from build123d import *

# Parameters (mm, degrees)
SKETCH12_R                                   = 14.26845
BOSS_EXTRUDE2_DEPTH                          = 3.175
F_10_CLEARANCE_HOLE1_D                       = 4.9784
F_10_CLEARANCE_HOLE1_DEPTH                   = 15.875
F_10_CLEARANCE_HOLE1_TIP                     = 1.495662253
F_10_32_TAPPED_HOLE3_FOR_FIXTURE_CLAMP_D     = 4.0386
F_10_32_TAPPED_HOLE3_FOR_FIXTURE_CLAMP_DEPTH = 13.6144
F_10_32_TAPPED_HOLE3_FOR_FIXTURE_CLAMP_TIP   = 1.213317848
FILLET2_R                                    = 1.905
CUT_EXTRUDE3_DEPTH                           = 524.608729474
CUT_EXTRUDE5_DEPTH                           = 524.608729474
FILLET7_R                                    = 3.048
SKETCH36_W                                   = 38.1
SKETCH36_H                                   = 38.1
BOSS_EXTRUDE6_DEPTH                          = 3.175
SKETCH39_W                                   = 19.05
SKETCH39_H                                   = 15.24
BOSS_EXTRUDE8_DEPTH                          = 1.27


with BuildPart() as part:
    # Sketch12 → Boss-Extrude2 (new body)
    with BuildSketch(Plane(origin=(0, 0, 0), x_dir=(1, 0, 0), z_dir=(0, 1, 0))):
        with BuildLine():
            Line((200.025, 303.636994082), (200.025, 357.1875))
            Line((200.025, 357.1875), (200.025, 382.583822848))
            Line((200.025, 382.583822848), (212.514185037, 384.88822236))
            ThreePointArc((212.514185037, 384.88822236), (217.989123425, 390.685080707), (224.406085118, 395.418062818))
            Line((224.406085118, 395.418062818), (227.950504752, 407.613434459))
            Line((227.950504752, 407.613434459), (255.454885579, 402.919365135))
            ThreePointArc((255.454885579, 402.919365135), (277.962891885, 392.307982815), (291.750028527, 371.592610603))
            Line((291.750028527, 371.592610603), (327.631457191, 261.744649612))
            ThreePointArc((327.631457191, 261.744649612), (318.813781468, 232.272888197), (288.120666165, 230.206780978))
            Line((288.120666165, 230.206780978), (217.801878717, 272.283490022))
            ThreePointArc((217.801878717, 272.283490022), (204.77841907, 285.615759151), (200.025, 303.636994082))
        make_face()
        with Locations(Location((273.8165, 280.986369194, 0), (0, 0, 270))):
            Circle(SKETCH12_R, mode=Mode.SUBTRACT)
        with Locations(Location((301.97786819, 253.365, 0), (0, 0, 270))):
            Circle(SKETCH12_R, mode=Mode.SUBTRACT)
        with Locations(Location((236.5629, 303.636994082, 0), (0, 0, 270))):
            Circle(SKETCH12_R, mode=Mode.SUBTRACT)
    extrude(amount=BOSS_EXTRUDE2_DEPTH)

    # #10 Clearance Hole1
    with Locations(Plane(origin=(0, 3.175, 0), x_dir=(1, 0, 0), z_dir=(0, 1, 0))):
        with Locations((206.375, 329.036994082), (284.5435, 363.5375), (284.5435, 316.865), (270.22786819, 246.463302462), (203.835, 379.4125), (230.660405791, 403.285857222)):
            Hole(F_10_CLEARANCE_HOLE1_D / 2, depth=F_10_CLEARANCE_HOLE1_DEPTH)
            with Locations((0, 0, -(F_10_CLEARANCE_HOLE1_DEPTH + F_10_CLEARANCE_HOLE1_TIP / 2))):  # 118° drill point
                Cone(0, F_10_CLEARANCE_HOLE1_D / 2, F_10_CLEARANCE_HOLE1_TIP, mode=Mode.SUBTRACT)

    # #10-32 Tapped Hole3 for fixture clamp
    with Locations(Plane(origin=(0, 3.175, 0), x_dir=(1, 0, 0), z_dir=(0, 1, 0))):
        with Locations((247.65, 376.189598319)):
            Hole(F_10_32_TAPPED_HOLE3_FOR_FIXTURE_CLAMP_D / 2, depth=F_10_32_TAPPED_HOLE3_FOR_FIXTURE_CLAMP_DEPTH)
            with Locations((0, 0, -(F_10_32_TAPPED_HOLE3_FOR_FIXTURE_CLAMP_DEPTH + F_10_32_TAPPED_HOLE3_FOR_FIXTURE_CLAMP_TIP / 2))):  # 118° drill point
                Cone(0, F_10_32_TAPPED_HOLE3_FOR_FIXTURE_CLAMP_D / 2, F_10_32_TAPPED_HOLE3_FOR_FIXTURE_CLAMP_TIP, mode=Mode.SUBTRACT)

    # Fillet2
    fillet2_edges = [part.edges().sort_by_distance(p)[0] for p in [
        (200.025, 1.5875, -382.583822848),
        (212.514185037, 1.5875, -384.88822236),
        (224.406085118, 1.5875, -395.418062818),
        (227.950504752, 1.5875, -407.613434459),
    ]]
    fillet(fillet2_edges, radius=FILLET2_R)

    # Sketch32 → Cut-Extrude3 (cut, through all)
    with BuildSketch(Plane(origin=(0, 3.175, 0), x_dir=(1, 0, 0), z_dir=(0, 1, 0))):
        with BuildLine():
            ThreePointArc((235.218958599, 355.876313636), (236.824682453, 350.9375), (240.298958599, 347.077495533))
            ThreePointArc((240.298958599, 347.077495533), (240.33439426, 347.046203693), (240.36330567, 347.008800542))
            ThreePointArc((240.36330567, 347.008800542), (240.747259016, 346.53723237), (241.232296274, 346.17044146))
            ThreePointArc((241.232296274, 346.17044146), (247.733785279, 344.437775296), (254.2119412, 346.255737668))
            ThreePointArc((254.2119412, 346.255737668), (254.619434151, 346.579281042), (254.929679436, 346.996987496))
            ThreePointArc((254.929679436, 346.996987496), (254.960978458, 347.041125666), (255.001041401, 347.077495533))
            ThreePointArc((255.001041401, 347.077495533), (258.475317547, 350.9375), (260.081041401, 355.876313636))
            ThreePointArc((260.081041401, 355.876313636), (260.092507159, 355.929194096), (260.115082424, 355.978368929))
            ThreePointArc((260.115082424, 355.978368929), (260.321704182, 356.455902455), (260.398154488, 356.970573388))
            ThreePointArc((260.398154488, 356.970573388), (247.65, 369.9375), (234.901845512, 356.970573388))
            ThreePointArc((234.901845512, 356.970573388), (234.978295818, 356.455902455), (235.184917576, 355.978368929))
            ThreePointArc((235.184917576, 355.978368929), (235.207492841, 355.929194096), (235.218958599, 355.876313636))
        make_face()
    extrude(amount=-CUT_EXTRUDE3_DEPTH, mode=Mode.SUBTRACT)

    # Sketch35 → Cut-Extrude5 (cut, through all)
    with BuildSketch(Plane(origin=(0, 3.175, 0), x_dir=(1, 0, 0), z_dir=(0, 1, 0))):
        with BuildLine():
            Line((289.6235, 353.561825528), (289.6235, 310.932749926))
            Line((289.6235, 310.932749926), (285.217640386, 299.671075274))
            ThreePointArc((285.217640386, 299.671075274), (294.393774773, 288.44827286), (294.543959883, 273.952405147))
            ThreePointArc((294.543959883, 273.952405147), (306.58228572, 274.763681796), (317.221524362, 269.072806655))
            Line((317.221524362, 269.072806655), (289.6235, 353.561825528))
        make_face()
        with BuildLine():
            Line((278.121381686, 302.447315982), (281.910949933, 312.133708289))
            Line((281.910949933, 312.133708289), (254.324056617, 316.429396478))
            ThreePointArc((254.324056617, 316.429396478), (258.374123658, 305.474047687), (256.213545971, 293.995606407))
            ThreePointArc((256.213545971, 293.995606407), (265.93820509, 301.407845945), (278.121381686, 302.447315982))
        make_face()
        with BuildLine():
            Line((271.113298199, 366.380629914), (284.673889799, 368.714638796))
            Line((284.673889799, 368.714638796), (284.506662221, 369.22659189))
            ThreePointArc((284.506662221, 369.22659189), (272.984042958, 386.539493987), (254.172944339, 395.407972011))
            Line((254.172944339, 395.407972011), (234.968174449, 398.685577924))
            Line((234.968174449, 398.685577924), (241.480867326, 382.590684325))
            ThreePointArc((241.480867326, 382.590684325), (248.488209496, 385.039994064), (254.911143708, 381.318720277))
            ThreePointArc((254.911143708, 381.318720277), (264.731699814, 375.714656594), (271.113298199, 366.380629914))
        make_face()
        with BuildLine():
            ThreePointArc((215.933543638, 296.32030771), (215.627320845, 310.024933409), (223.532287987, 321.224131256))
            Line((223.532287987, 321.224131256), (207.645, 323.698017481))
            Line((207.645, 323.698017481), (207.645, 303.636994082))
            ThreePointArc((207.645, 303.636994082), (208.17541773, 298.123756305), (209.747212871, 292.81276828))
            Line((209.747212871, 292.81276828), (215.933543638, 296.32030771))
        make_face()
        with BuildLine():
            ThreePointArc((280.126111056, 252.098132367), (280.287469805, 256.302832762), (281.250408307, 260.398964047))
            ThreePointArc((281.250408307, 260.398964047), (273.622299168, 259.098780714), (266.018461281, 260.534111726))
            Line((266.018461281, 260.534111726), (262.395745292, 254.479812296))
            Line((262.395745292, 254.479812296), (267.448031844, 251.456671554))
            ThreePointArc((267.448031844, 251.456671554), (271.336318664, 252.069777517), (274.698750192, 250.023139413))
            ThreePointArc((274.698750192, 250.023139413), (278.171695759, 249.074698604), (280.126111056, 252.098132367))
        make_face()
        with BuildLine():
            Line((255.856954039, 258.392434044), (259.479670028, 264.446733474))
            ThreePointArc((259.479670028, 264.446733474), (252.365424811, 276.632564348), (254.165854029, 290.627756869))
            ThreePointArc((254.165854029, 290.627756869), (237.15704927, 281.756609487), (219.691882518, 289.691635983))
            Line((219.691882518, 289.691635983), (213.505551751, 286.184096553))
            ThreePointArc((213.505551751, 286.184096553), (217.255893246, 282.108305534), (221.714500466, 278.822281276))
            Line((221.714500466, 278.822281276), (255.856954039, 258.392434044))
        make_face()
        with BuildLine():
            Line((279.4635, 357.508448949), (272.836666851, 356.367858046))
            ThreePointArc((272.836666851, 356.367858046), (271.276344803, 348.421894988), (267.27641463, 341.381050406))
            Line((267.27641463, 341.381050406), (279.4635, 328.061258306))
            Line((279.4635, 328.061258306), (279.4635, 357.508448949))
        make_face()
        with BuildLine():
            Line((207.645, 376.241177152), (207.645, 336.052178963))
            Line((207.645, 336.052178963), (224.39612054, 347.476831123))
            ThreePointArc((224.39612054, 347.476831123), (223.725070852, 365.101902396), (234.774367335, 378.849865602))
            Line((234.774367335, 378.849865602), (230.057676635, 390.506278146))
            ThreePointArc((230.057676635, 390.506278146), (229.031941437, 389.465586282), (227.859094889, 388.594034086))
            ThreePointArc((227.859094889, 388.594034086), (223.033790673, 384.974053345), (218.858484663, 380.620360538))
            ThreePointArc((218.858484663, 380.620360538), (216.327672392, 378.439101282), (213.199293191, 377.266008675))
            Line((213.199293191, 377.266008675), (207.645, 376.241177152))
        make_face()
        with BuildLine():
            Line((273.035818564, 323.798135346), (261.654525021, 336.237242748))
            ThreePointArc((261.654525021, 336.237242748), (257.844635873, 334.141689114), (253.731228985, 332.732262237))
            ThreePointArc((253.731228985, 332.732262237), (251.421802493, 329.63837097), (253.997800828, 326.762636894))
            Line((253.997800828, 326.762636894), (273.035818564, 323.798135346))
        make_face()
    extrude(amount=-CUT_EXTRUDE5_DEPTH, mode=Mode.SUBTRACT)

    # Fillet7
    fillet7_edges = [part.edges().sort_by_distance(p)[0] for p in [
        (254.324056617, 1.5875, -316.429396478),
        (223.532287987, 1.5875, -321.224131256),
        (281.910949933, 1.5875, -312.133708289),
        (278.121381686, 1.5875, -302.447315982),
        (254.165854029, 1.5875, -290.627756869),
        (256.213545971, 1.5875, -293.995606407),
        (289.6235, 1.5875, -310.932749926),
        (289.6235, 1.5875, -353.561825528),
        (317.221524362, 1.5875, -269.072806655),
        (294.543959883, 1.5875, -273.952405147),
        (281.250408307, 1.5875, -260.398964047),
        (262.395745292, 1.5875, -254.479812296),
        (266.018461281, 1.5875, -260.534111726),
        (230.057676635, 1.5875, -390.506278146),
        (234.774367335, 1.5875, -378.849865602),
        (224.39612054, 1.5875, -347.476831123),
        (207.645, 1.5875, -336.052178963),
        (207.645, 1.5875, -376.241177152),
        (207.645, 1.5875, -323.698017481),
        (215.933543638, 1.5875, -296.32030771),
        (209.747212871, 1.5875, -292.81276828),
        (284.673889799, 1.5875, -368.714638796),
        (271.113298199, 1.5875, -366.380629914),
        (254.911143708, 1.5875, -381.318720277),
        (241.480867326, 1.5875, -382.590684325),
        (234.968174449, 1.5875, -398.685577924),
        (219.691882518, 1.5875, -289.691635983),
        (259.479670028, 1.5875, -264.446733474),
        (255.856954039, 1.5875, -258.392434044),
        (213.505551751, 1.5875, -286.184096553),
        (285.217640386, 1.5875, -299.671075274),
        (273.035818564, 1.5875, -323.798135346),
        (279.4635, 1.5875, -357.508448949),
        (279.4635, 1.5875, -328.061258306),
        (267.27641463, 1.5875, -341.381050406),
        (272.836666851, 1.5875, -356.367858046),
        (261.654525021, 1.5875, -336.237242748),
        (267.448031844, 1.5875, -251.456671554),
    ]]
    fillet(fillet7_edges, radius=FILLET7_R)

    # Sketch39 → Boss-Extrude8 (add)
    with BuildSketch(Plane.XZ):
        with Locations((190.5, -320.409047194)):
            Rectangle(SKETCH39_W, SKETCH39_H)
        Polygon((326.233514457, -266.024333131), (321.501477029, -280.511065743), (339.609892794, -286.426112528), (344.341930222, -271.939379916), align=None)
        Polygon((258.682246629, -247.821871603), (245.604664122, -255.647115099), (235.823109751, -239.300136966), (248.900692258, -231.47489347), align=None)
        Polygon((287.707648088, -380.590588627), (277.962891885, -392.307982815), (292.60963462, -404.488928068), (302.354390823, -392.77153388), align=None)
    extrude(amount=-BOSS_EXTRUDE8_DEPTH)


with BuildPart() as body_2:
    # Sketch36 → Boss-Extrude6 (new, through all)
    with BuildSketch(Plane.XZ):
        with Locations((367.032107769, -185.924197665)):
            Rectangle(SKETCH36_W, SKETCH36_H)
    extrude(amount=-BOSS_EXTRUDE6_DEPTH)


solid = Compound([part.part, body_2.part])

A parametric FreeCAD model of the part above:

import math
import FreeCAD as App
import Part
import Sketcher

V = App.Vector
Q = App.Units.Quantity


def edges_at(feature, points):
    """Names of the edges that pass closest to the given points."""
    edges = feature.Shape.Edges
    near = lambda p: min(range(len(edges)), key=lambda i: edges[i].distToShape(Part.Vertex(*p))[0])
    return sorted({f"Edge{near(p) + 1}" for p in points})


def add_polygon(sketch, points):
    """Adds a closed chain of lines whose ends are joined by coincident constraints."""
    first, n = sketch.GeometryCount, len(points)
    for a, b in zip(points, points[1:] + points[:1]):
        sketch.addGeometry(Part.LineSegment(App.Vector(*a, 0), App.Vector(*b, 0)), False)
    for i in range(n):
        sketch.addConstraint(Sketcher.Constraint("Coincident", first + i, 2, first + (i + 1) % n, 1))

doc = App.newDocument("Part")
body = doc.addObject("PartDesign::Body", "Body")

# Sketch on XZ plane
sketch1 = doc.addObject("Sketcher::SketchObject", "Sketch")
body.addObject(sketch1)
sketch1.AttachmentSupport = (doc.XZ_Plane, [""])
sketch1.MapMode = "FlatFace"
sketch1.addGeometry([
    Part.LineSegment(V(200.025, -382.583823, 0), V(200.025, -303.636994, 0)),  # 0
    Part.ArcOfCircle(Part.Circle(V(236.5629, -303.636994, 0), V(0, 0, 1), 36.5379), math.radians(120.89507), math.radians(180)),  # 1
    Part.LineSegment(V(217.801879, -272.28349, 0), V(288.120666, -230.206781, 0)),  # 2
    Part.ArcOfCircle(Part.Circle(V(301.977868, -253.365, 0), V(0, 0, 1), 26.9875), math.radians(-18.089434), math.radians(120.89507)),  # 3
    Part.LineSegment(V(327.631457, -261.74465, 0), V(291.750029, -371.592611, 0)),  # 4
    Part.ArcOfCircle(Part.Circle(V(247.65, -357.1875, 0), V(0, 0, 1), 46.3931), math.radians(-80.314858), math.radians(-18.089434)),  # 5
    Part.LineSegment(V(255.454886, -402.919365, 0), V(227.950505, -407.613434, 0)),  # 6
    Part.LineSegment(V(227.950505, -407.613434, 0), V(224.406085, -395.418063, 0)),  # 7
    Part.ArcOfCircle(Part.Circle(V(247.65, -357.1875, 0), V(0, 0, 1), 44.7421), math.radians(-141.74811), math.radians(-121.299309)),  # 8
    Part.LineSegment(V(212.514185, -384.888222, 0), V(200.025, -382.583823, 0)),  # 9
    Part.Circle(V(301.977868, -253.365, 0), V(0, 0, 1), 14.26845),  # 10
    Part.Circle(V(273.8165, -280.986369, 0), V(0, 0, 1), 14.26845),  # 11
    Part.Circle(V(236.5629, -303.636994, 0), V(0, 0, 1), 14.26845),  # 12
], False)
sketch1.addConstraint([
    Sketcher.Constraint("Tangent", 0, 2, 1, 2),
    Sketcher.Constraint("Tangent", 1, 1, 2, 1),
    Sketcher.Constraint("Tangent", 2, 2, 3, 2),
    Sketcher.Constraint("Tangent", 3, 1, 4, 1),
    Sketcher.Constraint("Tangent", 4, 2, 5, 2),
    Sketcher.Constraint("Tangent", 5, 1, 6, 1),
    Sketcher.Constraint("Coincident", 6, 2, 7, 1),
    Sketcher.Constraint("Coincident", 7, 2, 8, 2),
    Sketcher.Constraint("Coincident", 8, 1, 9, 1),
    Sketcher.Constraint("Coincident", 9, 2, 0, 1),
    Sketcher.Constraint("Vertical", 0),
    Sketcher.Constraint("Coincident", 8, 3, 5, 3),
    Sketcher.Constraint("Coincident", 10, 3, 3, 3),
    Sketcher.Constraint("Coincident", 12, 3, 1, 3),
    Sketcher.Constraint("Equal", 10, 11),
    Sketcher.Constraint("Equal", 11, 12),
    Sketcher.Constraint("Equal", 7, 9),
    Sketcher.Constraint("Radius", 3, Q("1.0625 in")),
    Sketcher.Constraint("Distance", 7, Q("0.5 in")),
    Sketcher.Constraint("Diameter", 10, Q("1.1235 in")),
    Sketcher.Constraint("Radius", 1, Q("1.4385 in")),
    Sketcher.Constraint("Radius", 5, Q("1.8265 in")),
    Sketcher.Constraint("Radius", 8, Q("1.7615 in")),
    Sketcher.Constraint("DistanceX", -1, 1, 5, 3, Q("9.75 in")),
    Sketcher.Constraint("DistanceY", 3, 3, -1, 1, Q("9.975 in")),
    Sketcher.Constraint("DistanceY", 5, 3, -1, 1, Q("14.0625 in")),
    Sketcher.Constraint("DistanceX", -1, 1, 0, 2, Q("7.875 in")),
    Sketcher.Constraint("DistanceX", -1, 1, 8, 1, Q("8.3667002 in")),
    Sketcher.Constraint("DistanceX", 1, 1, 11, 3, Q("2.2053001 in")),
    Sketcher.Constraint("DistanceY", 0, 1, 0, 2, 78.946829),
    Sketcher.Constraint("DistanceX", -1, 1, 11, 3, 273.8165),
    Sketcher.Constraint("DistanceX", 7, 2, 5, 1, 31.0488),
    Sketcher.Constraint("DistanceX", 8, 1, 7, 2, 11.8919),
    Sketcher.Constraint("DistanceY", 11, 3, -1, 1, 280.986369),
])
pad1 = doc.addObject("PartDesign::Pad", "Pad")
body.addObject(pad1)
pad1.Profile = sketch1
pad1.Length = Q("0.125 in")
pad1.Reversed = True

# Sketch on XZ plane
sketch2 = doc.addObject("Sketcher::SketchObject", "Sketch001")
body.addObject(sketch2)
sketch2.AttachmentSupport = (doc.XZ_Plane, [""])
sketch2.MapMode = "FlatFace"
sketch2.AttachmentOffset = App.Placement(V(0, 0, -0.125 * 25.4), App.Rotation())
sketch2.addGeometry([
    Part.Circle(V(206.375, -329.036994, 0), V(0, 0, 1), 2.4892),  # 0
    Part.Circle(V(284.5435, -363.5375, 0), V(0, 0, 1), 2.4892),  # 1
    Part.Circle(V(284.5435, -316.865, 0), V(0, 0, 1), 2.4892),  # 2
    Part.Circle(V(270.227868, -246.463302, 0), V(0, 0, 1), 2.4892),  # 3
    Part.Circle(V(203.835, -379.4125, 0), V(0, 0, 1), 2.4892),  # 4
    Part.Circle(V(230.660406, -403.285857, 0), V(0, 0, 1), 2.4892),  # 5
], False)
sketch2.addConstraint([
    Sketcher.Constraint("Equal", 0, 1),
    Sketcher.Constraint("Equal", 1, 2),
    Sketcher.Constraint("Equal", 2, 3),
    Sketcher.Constraint("Equal", 3, 4),
    Sketcher.Constraint("Equal", 4, 5),
    Sketcher.Constraint("Vertical", 1, 3, 2, 3),
    Sketcher.Constraint("Diameter", 0, Q("0.196 in")),
    Sketcher.Constraint("DistanceX", 4, 3, 0, 3, Q("0.1 in")),
    Sketcher.Constraint("DistanceX", -1, 1, 0, 3, Q("8.125 in")),
    Sketcher.Constraint("DistanceY", 1, 3, -1, 1, Q("14.3125 in")),
    Sketcher.Constraint("DistanceY", 2, 3, -1, 1, Q("12.475 in")),
    Sketcher.Constraint("DistanceY", 4, 3, -1, 1, Q("14.9375 in")),
    Sketcher.Constraint("DistanceX", -1, 1, 1, 3, Q("11.2025 in")),
    Sketcher.Constraint("DistanceX", -1, 1, 3, 3, 270.227868),
    Sketcher.Constraint("DistanceY", 0, 3, 3, 3, 82.573692),
    Sketcher.Constraint("DistanceY", 0, 3, -1, 1, 329.036994),
    Sketcher.Constraint("DistanceX", -1, 1, 5, 3, 230.660406),
    Sketcher.Constraint("DistanceY", 5, 3, -1, 1, 403.285857),
])
doc.recompute()
hole = doc.addObject("PartDesign::Hole", "Hole")
body.addObject(hole)
hole.Profile = sketch2
hole.ThreadType = "None"
hole.Diameter = Q("0.196 in")
hole.DepthType = "Dimension"
hole.Depth = Q("0.625 in")
hole.DrillPoint = "Angled"
hole.DrillPointAngle = 118
hole.Reversed = True

# Sketch on XZ plane
sketch3 = doc.addObject("Sketcher::SketchObject", "Sketch002")
body.addObject(sketch3)
sketch3.AttachmentSupport = (doc.XZ_Plane, [""])
sketch3.MapMode = "FlatFace"
sketch3.AttachmentOffset = App.Placement(V(0, 0, -0.125 * 25.4), App.Rotation())
sketch3.addGeometry(Part.Circle(V(247.65, -376.189598, 0), V(0, 0, 1), 2.0193), False)
sketch3.addConstraint([
    Sketcher.Constraint("Diameter", 0, Q("0.159 in")),
    Sketcher.Constraint("DistanceX", -1, 1, 0, 3, Q("9.75 in")),
    Sketcher.Constraint("DistanceY", 0, 3, -1, 1, 376.189598),
])
doc.recompute()
hole2 = doc.addObject("PartDesign::Hole", "Hole001")
body.addObject(hole2)
hole2.Profile = sketch3
hole2.ThreadType = "None"
hole2.Diameter = Q("0.159 in")
hole2.DepthType = "Dimension"
hole2.Depth = Q("0.536 in")
hole2.DrillPoint = "Angled"
hole2.DrillPointAngle = 118
hole2.Reversed = True
doc.recompute()

fillet = doc.addObject("PartDesign::Fillet", "Fillet")
body.addObject(fillet)
fillet.Base = (hole2, edges_at(hole2, [
    (200.025, 1.587, -382.584),
    (212.514, 1.587, -384.888),
    (224.406, 1.587, -395.418),
    (227.951, 1.587, -407.613),
]))
fillet.Radius = Q("0.075 in")

# Sketch on XZ plane
sketch4 = doc.addObject("Sketcher::SketchObject", "Sketch003")
body.addObject(sketch4)
sketch4.AttachmentSupport = (doc.XZ_Plane, [""])
sketch4.MapMode = "FlatFace"
sketch4.AttachmentOffset = App.Placement(V(0, 0, -0.125 * 25.4), App.Rotation())
sketch4.addGeometry([
    Part.ArcOfCircle(Part.Circle(V(247.65, -357.1875, 0), V(0, 0, 1), 12.5), math.radians(126.021112), math.radians(173.978888)),  # 0
    Part.ArcOfCircle(Part.Circle(V(240.151938, -346.875295, 0), V(0, 0, 1), 0.25), math.radians(-53.978889), math.radians(-32.277501)),  # 1
    Part.ArcOfCircle(Part.Circle(V(242.510804, -348.365212, 0), V(0, 0, 1), 2.54), math.radians(120.221837), math.radians(147.722499)),  # 2
    Part.ArcOfCircle(Part.Circle(V(247.65, -357.1875, 0), V(0, 0, 1), 12.75), math.radians(59.025131), math.radians(120.221837)),  # 3
    Part.ArcOfCircle(Part.Circle(V(253.182617, -347.970524, 0), V(0, 0, 1), 2), math.radians(29.128386), math.radians(59.025131)),  # 4
    Part.ArcOfCircle(Part.Circle(V(255.148062, -346.875295, 0), V(0, 0, 1), 0.25), math.radians(-150.871615), math.radians(-126.021112)),  # 5
    Part.ArcOfCircle(Part.Circle(V(247.65, -357.1875, 0), V(0, 0, 1), 12.5), math.radians(6.021112), math.radians(53.978888)),  # 6
    Part.ArcOfCircle(Part.Circle(V(260.329662, -355.85009, 0), V(0, 0, 1), 0.25), math.radians(-173.978887), math.radians(-149.128386)),  # 7
    Part.ArcOfCircle(Part.Circle(V(258.398444, -357.004601, 0), V(0, 0, 1), 2), math.radians(0.974869), math.radians(30.871614)),  # 8
    Part.ArcOfCircle(Part.Circle(V(247.65, -357.1875, 0), V(0, 0, 1), 12.75), math.radians(179.025131), math.radians(360.974869)),  # 9
    Part.ArcOfCircle(Part.Circle(V(236.901556, -357.004601, 0), V(0, 0, 1), 2), math.radians(149.128386), math.radians(179.025131)),  # 10
    Part.ArcOfCircle(Part.Circle(V(234.970338, -355.85009, 0), V(0, 0, 1), 0.25), math.radians(-30.871614), math.radians(-6.021113)),  # 11
], False)
sketch4.addConstraint([
    Sketcher.Constraint("Tangent", 0, 1, 1, 1),
    Sketcher.Constraint("Tangent", 1, 2, 2, 2),
    Sketcher.Constraint("Tangent", 2, 1, 3, 2),
    Sketcher.Constraint("Tangent", 3, 1, 4, 2),
    Sketcher.Constraint("Tangent", 4, 1, 5, 1),
    Sketcher.Constraint("Tangent", 5, 2, 6, 2),
    Sketcher.Constraint("Tangent", 6, 1, 7, 1),
    Sketcher.Constraint("Tangent", 7, 2, 8, 2),
    Sketcher.Constraint("Tangent", 8, 1, 9, 2),
    Sketcher.Constraint("Tangent", 9, 1, 10, 2),
    Sketcher.Constraint("Tangent", 10, 1, 11, 1),
    Sketcher.Constraint("Tangent", 11, 2, 0, 2),
    Sketcher.Constraint("Coincident", 3, 3, 0, 3),
    Sketcher.Constraint("Coincident", 6, 3, 0, 3),
    Sketcher.Constraint("Coincident", 9, 3, 0, 3),
    Sketcher.Constraint("Equal", 1, 5),
    Sketcher.Constraint("Equal", 0, 6),
    Sketcher.Constraint("Equal", 5, 7),
    Sketcher.Constraint("Equal", 4, 8),
    Sketcher.Constraint("Equal", 3, 9),
    Sketcher.Constraint("Equal", 8, 10),
    Sketcher.Constraint("Equal", 7, 11),
    Sketcher.Constraint("Horizontal", 1, 3, 5, 3),
    Sketcher.Constraint("Horizontal", 8, 3, 10, 3),
    Sketcher.Constraint("Radius", 2, Q("0.1 in")),
    Sketcher.Constraint("DistanceX", 5, 2, 6, 1, Q("0.2 in")),
    Sketcher.Constraint("DistanceX", -1, 1, 0, 3, Q("9.75 in")),
    Sketcher.Constraint("Radius", 0, 12.5),
    Sketcher.Constraint("Radius", 1, 0.25),
    Sketcher.Constraint("Radius", 3, 12.75),
    Sketcher.Constraint("Radius", 4, 2.0),
    Sketcher.Constraint("DistanceY", 0, 3, -1, 1, Q("14.0625 in")),
    Sketcher.Constraint("DistanceY", 8, 3, -1, 1, 357.004601),
])
pocket1 = doc.addObject("PartDesign::Pocket", "Pocket")
body.addObject(pocket1)
pocket1.Profile = sketch4
pocket1.Type = "ThroughAll"
pocket1.Reversed = True

# Sketch on XZ plane
sketch5 = doc.addObject("Sketcher::SketchObject", "Sketch004")
body.addObject(sketch5)
sketch5.AttachmentSupport = (doc.XZ_Plane, [""])
sketch5.MapMode = "FlatFace"
sketch5.AttachmentOffset = App.Placement(V(0, 0, -0.125 * 25.4), App.Rotation())
sketch5.addGeometry([
    Part.LineSegment(V(289.6235, -353.561826, 0), V(289.6235, -310.93275, 0)),  # 0
    Part.LineSegment(V(289.6235, -310.93275, 0), V(285.21764, -299.671075, 0)),  # 1
    Part.ArcOfCircle(Part.Circle(V(273.8165, -280.986369, 0), V(0, 0, 1), 21.88845), math.radians(-58.609055), math.radians(18.744893)),  # 2
    Part.ArcOfCircle(Part.Circle(V(301.977868, -253.365, 0), V(0, 0, 1), 21.88845), math.radians(-109.85415), math.radians(-45.859147)),  # 3
    Part.LineSegment(V(317.221524, -269.072807, 0), V(289.6235, -353.561826, 0)),  # 4
    Part.LineSegment(V(278.121382, -302.447316, 0), V(281.91095, -312.133708, 0)),  # 5
    Part.LineSegment(V(281.91095, -312.133708, 0), V(254.324057, -316.429396, 0)),  # 6
    Part.ArcOfCircle(Part.Circle(V(236.5629, -303.636994, 0), V(0, 0, 1), 21.88845), math.radians(-35.76317), math.radians(26.134404)),  # 7
    Part.ArcOfCircle(Part.Circle(V(273.8165, -280.986369, 0), V(0, 0, 1), 21.88845), math.radians(-143.534222), math.radians(-78.657489)),  # 8
    Part.LineSegment(V(271.113298, -366.38063, 0), V(284.67389, -368.714639, 0)),  # 9
    Part.LineSegment(V(284.67389, -368.714639, 0), V(284.506662, -369.226592, 0)),  # 10
    Part.ArcOfCircle(Part.Circle(V(247.65, -357.1875, 0), V(0, 0, 1), 38.7731), math.radians(-80.314858), math.radians(-18.089434)),  # 11
    Part.LineSegment(V(254.172944, -395.407972, 0), V(234.968174, -398.685578, 0)),  # 12
    Part.LineSegment(V(234.968174, -398.685578, 0), V(241.480867, -382.590684, 0)),  # 13
    Part.ArcOfCircle(Part.Circle(V(247.65, -376.189598, 0), V(0, 0, 1), 8.89), math.radians(-133.942863), math.radians(-35.236594)),  # 14
    Part.ArcOfCircle(Part.Circle(V(247.65, -357.1875, 0), V(0, 0, 1), 25.2), math.radians(-73.253329), math.radians(-21.39569)),  # 15
    Part.ArcOfCircle(Part.Circle(V(236.5629, -303.636994, 0), V(0, 0, 1), 21.88845), math.radians(160.471752), math.radians(233.464618)),  # 16
    Part.LineSegment(V(223.532288, -321.224131, 0), V(207.645, -323.698017, 0)),  # 17
    Part.LineSegment(V(207.645, -323.698017, 0), V(207.645, -303.636994, 0)),  # 18
    Part.ArcOfCircle(Part.Circle(V(236.5629, -303.636994, 0), V(0, 0, 1), 28.9179), math.radians(158.018398), math.radians(180)),  # 19
    Part.LineSegment(V(209.747213, -292.812768, 0), V(215.933544, -296.320308, 0)),  # 20
    Part.ArcOfCircle(Part.Circle(V(301.977868, -253.365, 0), V(0, 0, 1), 21.88845), math.radians(176.68196), math.radians(198.744893)),  # 21
    Part.ArcOfCircle(Part.Circle(V(273.8165, -280.986369, 0), V(0, 0, 1), 21.88845), math.radians(70.14585), math.radians(110.870853)),  # 22
    Part.LineSegment(V(266.018461, -260.534112, 0), V(262.395745, -254.479812, 0)),  # 23
    Part.LineSegment(V(262.395745, -254.479812, 0), V(267.448032, -251.456672, 0)),  # 24
    Part.ArcOfCircle(Part.Circle(V(270.227868, -246.463302, 0), V(0, 0, 1), 5.715), math.radians(-119.10493), math.radians(-38.52775)),  # 25
    Part.ArcOfCircle(Part.Circle(V(277.083221, -251.921719, 0), V(0, 0, 1), 3.048), math.radians(-3.31804), math.radians(141.47225)),  # 26
    Part.LineSegment(V(255.856954, -258.392434, 0), V(259.47967, -264.446733, 0)),  # 27
    Part.ArcOfCircle(Part.Circle(V(273.8165, -280.986369, 0), V(0, 0, 1), 21.88845), math.radians(130.919287), math.radians(206.134404)),  # 28
    Part.ArcOfCircle(Part.Circle(V(236.5629, -303.636994, 0), V(0, 0, 1), 21.88845), math.radians(36.465778), math.radians(140.423318)),  # 29
    Part.LineSegment(V(219.691883, -289.691636, 0), V(213.505552, -286.184097, 0)),  # 30
    Part.ArcOfCircle(Part.Circle(V(236.5629, -303.636994, 0), V(0, 0, 1), 28.9179), math.radians(120.89507), math.radians(142.876672)),  # 31
    Part.LineSegment(V(221.7145, -278.822281, 0), V(255.856954, -258.392434, 0)),  # 32
    Part.LineSegment(V(279.4635, -357.508449, 0), V(272.836667, -356.367858, 0)),  # 33
    Part.ArcOfCircle(Part.Circle(V(247.65, -357.1875, 0), V(0, 0, 1), 25.2), math.radians(1.863901), math.radians(38.846792)),  # 34
    Part.LineSegment(V(267.276415, -341.38105, 0), V(279.4635, -328.061258, 0)),  # 35
    Part.LineSegment(V(279.4635, -328.061258, 0), V(279.4635, -357.508449, 0)),  # 36
    Part.LineSegment(V(207.645, -376.241177, 0), V(207.645, -336.052179, 0)),  # 37
    Part.LineSegment(V(207.645, -336.052179, 0), V(224.396121, -347.476831, 0)),  # 38
    Part.ArcOfCircle(Part.Circle(V(247.65, -357.1875, 0), V(0, 0, 1), 25.2), math.radians(157.334902), math.radians(239.273683)),  # 39
    Part.LineSegment(V(234.774367, -378.849866, 0), V(230.057677, -390.506278, 0)),  # 40
    Part.ArcOfCircle(Part.Circle(V(222.781032, -396.652502, 0), V(0, 0, 1), 9.525), math.radians(40.186133), math.radians(57.782819)),  # 41
    Part.ArcOfCircle(Part.Circle(V(247.65, -357.1875, 0), V(0, 0, 1), 37.1221), math.radians(-140.85852), math.radians(-122.217181)),  # 42
    Part.ArcOfCircle(Part.Circle(V(211.470994, -386.632897, 0), V(0, 0, 1), 9.525), math.radians(39.14148), math.radians(79.545841)),  # 43
    Part.LineSegment(V(213.199293, -377.266009, 0), V(207.645, -376.241177, 0)),  # 44
    Part.LineSegment(V(273.035819, -323.798135, 0), V(261.654525, -336.237243, 0)),  # 45
    Part.ArcOfCircle(Part.Circle(V(247.65, -357.1875, 0), V(0, 0, 1), 25.2), math.radians(56.238637), math.radians(76.035621)),  # 46
    Part.ArcOfCircle(Part.Circle(V(254.466768, -329.774343, 0), V(0, 0, 1), 3.048), math.radians(98.850724), math.radians(256.035621)),  # 47
    Part.LineSegment(V(253.997801, -326.762637, 0), V(273.035819, -323.798135, 0)),  # 48
], False)
sketch5.addConstraint([
    Sketcher.Constraint("Coincident", 0, 2, 1, 1),
    Sketcher.Constraint("Coincident", 1, 2, 2, 1),
    Sketcher.Constraint("Coincident", 2, 2, 3, 1),
    Sketcher.Constraint("Coincident", 3, 2, 4, 1),
    Sketcher.Constraint("Coincident", 4, 2, 0, 1),
    Sketcher.Constraint("Coincident", 5, 2, 6, 1),
    Sketcher.Constraint("Coincident", 6, 2, 7, 1),
    Sketcher.Constraint("Coincident", 7, 2, 8, 1),
    Sketcher.Constraint("Coincident", 8, 2, 5, 1),
    Sketcher.Constraint("Coincident", 9, 2, 10, 1),
    Sketcher.Constraint("Tangent", 10, 2, 11, 2),
    Sketcher.Constraint("Tangent", 11, 1, 12, 1),
    Sketcher.Constraint("Coincident", 12, 2, 13, 1),
    Sketcher.Constraint("Coincident", 13, 2, 14, 1),
    Sketcher.Constraint("Coincident", 14, 2, 15, 1),
    Sketcher.Constraint("Coincident", 15, 2, 9, 1),
    Sketcher.Constraint("Coincident", 16, 2, 17, 1),
    Sketcher.Constraint("Coincident", 17, 2, 18, 1),
    Sketcher.Constraint("Tangent", 18, 2, 19, 2),
    Sketcher.Constraint("Coincident", 19, 1, 20, 1),
    Sketcher.Constraint("Coincident", 20, 2, 16, 1),
    Sketcher.Constraint("Coincident", 21, 2, 22, 1),
    Sketcher.Constraint("Coincident", 22, 2, 23, 1),
    Sketcher.Constraint("Coincident", 23, 2, 24, 1),
    Sketcher.Constraint("Coincident", 24, 2, 25, 1),
    Sketcher.Constraint("Tangent", 25, 2, 26, 2),
    Sketcher.Constraint("Tangent", 26, 1, 21, 1),
    Sketcher.Constraint("Coincident", 27, 2, 28, 1),
    Sketcher.Constraint("Coincident", 28, 2, 29, 1),
    Sketcher.Constraint("Coincident", 29, 2, 30, 1),
    Sketcher.Constraint("Coincident", 30, 2, 31, 2),
    Sketcher.Constraint("Tangent", 31, 1, 32, 1),
    Sketcher.Constraint("Coincident", 32, 2, 27, 1),
    Sketcher.Constraint("Coincident", 33, 2, 34, 1),
    Sketcher.Constraint("Coincident", 34, 2, 35, 1),
    Sketcher.Constraint("Coincident", 35, 2, 36, 1),
    Sketcher.Constraint("Coincident", 36, 2, 33, 1),
    Sketcher.Constraint("Coincident", 37, 2, 38, 1),
    Sketcher.Constraint("Coincident", 38, 2, 39, 1),
    Sketcher.Constraint("Coincident", 39, 2, 40, 1),
    Sketcher.Constraint("Coincident", 40, 2, 41, 1),
    Sketcher.Constraint("Tangent", 41, 2, 42, 2),
    Sketcher.Constraint("Tangent", 42, 1, 43, 1),
    Sketcher.Constraint("Tangent", 43, 2, 44, 1),
    Sketcher.Constraint("Coincident", 44, 2, 37, 1),
    Sketcher.Constraint("Coincident", 45, 2, 46, 1),
    Sketcher.Constraint("Tangent", 46, 2, 47, 2),
    Sketcher.Constraint("Tangent", 47, 1, 48, 1),
    Sketcher.Constraint("Coincident", 48, 2, 45, 1),
    Sketcher.Constraint("Vertical", 0),
    Sketcher.Constraint("Vertical", 18),
    Sketcher.Constraint("Vertical", 36),
    Sketcher.Constraint("Vertical", 37),
    Sketcher.Constraint("Coincident", 8, 3, 2, 3),
    Sketcher.Constraint("Coincident", 15, 3, 11, 3),
    Sketcher.Constraint("Coincident", 16, 3, 7, 3),
    Sketcher.Constraint("Coincident", 19, 3, 7, 3),
    Sketcher.Constraint("Coincident", 21, 3, 3, 3),
    Sketcher.Constraint("Coincident", 22, 3, 2, 3),
    Sketcher.Constraint("Coincident", 28, 3, 2, 3),
    Sketcher.Constraint("Coincident", 29, 3, 7, 3),
    Sketcher.Constraint("Coincident", 31, 3, 7, 3),
    Sketcher.Constraint("Coincident", 34, 3, 11, 3),
    Sketcher.Constraint("Coincident", 39, 3, 11, 3),
    Sketcher.Constraint("Coincident", 42, 3, 11, 3),
    Sketcher.Constraint("Coincident", 46, 3, 11, 3),
    Sketcher.Constraint("Equal", 2, 3),
    Sketcher.Constraint("Equal", 3, 7),
    Sketcher.Constraint("Equal", 7, 8),
    Sketcher.Constraint("Equal", 8, 16),
    Sketcher.Constraint("Equal", 16, 21),
    Sketcher.Constraint("Equal", 21, 22),
    Sketcher.Constraint("Equal", 22, 28),
    Sketcher.Constraint("Equal", 28, 29),
    Sketcher.Constraint("Equal", 19, 31),
    Sketcher.Constraint("Equal", 15, 34),
    Sketcher.Constraint("Equal", 34, 39),
    Sketcher.Constraint("Equal", 41, 43),
    Sketcher.Constraint("Equal", 39, 46),
    Sketcher.Constraint("Equal", 26, 47),
    Sketcher.Constraint("Parallel", 1, 5),
    Sketcher.Constraint("Parallel", 4, 10),
    Sketcher.Constraint("Parallel", 6, 17),
    Sketcher.Constraint("Perpendicular", 23, 24),
    Sketcher.Constraint("Perpendicular", 24, 27),
    Sketcher.Constraint("Parallel", 20, 30),
    Sketcher.Constraint("Perpendicular", 27, 32),
    Sketcher.Constraint("Parallel", 9, 33),
    Sketcher.Constraint("Parallel", 13, 40),
    Sketcher.Constraint("Parallel", 35, 45),
    Sketcher.Constraint("Parallel", 17, 48),
    Sketcher.Constraint("Vertical", 11, 3, 14, 3),
    Sketcher.Constraint("Vertical", 18, 2, 37, 2),
    Sketcher.Constraint("Equal", 23, 27),
    Sketcher.Constraint("Equal", 20, 30),
    Sketcher.Constraint("Radius", 14, Q("0.35 in")),
    Sketcher.Constraint("Radius", 26, Q("0.12 in")),
    Sketcher.Constraint("Radius", 25, Q("0.225 in")),
    Sketcher.Constraint("Radius", 41, Q("0.375 in")),
    Sketcher.Constraint("Radius", 11, Q("1.5265 in")),
    Sketcher.Constraint("Radius", 19, Q("1.1385 in")),
    Sketcher.Constraint("Radius", 42, Q("1.4615 in")),
    Sketcher.Constraint("DistanceX", -1, 1, 11, 3, Q("9.75 in")),
    Sketcher.Constraint("Radius", 15, 25.2),
    Sketcher.Constraint("DistanceY", 3, 3, -1, 1, Q("9.975 in")),
    Sketcher.Constraint("DistanceY", 11, 3, -1, 1, Q("14.0625 in")),
    Sketcher.Constraint("DistanceX", -1, 1, 17, 2, Q("8.175 in")),
    Sketcher.Constraint("Radius", 2, 21.88845),
    Sketcher.Constraint("Distance", 5, Q("0.4095 in")),
    Sketcher.Constraint("DistanceY", 37, 1, 37, 2, 40.188998),
    Sketcher.Constraint("DistanceX", -1, 1, 0, 2, Q("11.4025 in")),
    Sketcher.Constraint("DistanceX", -1, 1, 35, 2, Q("11.0025 in")),
    Sketcher.Constraint("Distance", 4, 88.882199),
    Sketcher.Constraint("DistanceY", 36, 2, 36, 1, 29.447191),
    Sketcher.Constraint("DistanceX", -1, 1, 2, 3, 273.8165),
    Sketcher.Constraint("DistanceY", 14, 3, -1, 1, 376.189598),
    Sketcher.Constraint("DistanceY", 41, 3, -1, 1, 396.652502),
    Sketcher.Constraint("DistanceX", -1, 1, 15, 2, 271.113298),
    Sketcher.Constraint("DistanceX", -1, 1, 31, 1, 221.7145),
    Sketcher.Constraint("DistanceX", -1, 1, 47, 1, 253.997801),
    Sketcher.Constraint("Distance", 6, 27.919341),
    Sketcher.Constraint("Distance", 12, 19.482451),
    Sketcher.Constraint("Distance", 32, 39.788011),
    Sketcher.Constraint("Distance", 35, 18.053861),
    Sketcher.Constraint("Distance", 38, 20.276161),
    Sketcher.Constraint("Distance", 44, 5.648049),
    Sketcher.Constraint("DistanceY", 0, 1, 0, 2, 42.629076),
    Sketcher.Constraint("DistanceY", 18, 1, 18, 2, 20.061023),
    Sketcher.Constraint("DistanceY", 2, 3, -1, 1, 280.986369),
    Sketcher.Constraint("DistanceX", -1, 1, 3, 3, 301.977868),
    Sketcher.Constraint("DistanceX", -1, 1, 25, 3, 270.227868),
    Sketcher.Constraint("DistanceX", -1, 1, 26, 3, 277.083221),
    Sketcher.Constraint("DistanceX", -1, 1, 47, 3, 254.466768),
    Sketcher.Constraint("DistanceY", 0, 2, -1, 1, 310.93275),
    Sketcher.Constraint("DistanceX", -1, 1, 1, 2, 285.21764),
    Sketcher.Constraint("DistanceX", -1, 1, 5, 2, 281.91095),
    Sketcher.Constraint("DistanceX", -1, 1, 9, 2, 284.67389),
    Sketcher.Constraint("DistanceY", 19, 1, -1, 1, 292.812768),
    Sketcher.Constraint("DistanceX", -1, 1, 22, 2, 266.018461),
    Sketcher.Constraint("DistanceX", -1, 1, 30, 2, 213.505552),
    Sketcher.Constraint("DistanceY", 33, 2, -1, 1, 356.367858),
    Sketcher.Constraint("DistanceY", 37, 2, -1, 1, 336.052179),
    Sketcher.Constraint("DistanceY", 40, 2, -1, 1, 390.506278),
    Sketcher.Constraint("DistanceX", -1, 1, 48, 2, 273.035819),
    Sketcher.Constraint("Distance", 13, 17.362626),
    Sketcher.Constraint("Distance", 40, 12.574543),
])
pocket2 = doc.addObject("PartDesign::Pocket", "Pocket001")
body.addObject(pocket2)
pocket2.Profile = sketch5
pocket2.Type = "ThroughAll"
pocket2.Reversed = True
doc.recompute()

fillet2 = doc.addObject("PartDesign::Fillet", "Fillet001")
body.addObject(fillet2)
fillet2.Base = (pocket2, edges_at(pocket2, [
    (254.324, 1.587, -316.429),
    (223.532, 1.587, -321.224),
    (281.911, 1.587, -312.134),
    (278.121, 1.587, -302.447),
    (254.166, 1.587, -290.628),
    (256.214, 1.587, -293.996),
    (289.623, 1.587, -310.933),
    (289.623, 1.587, -353.562),
    (317.222, 1.587, -269.073),
    (294.544, 1.587, -273.952),
    (281.25, 1.587, -260.399),
    (262.396, 1.587, -254.48),
    (266.018, 1.587, -260.534),
    (230.058, 1.587, -390.506),
    (234.774, 1.587, -378.85),
    (224.396, 1.587, -347.477),
    (207.645, 1.587, -336.052),
    (207.645, 1.587, -376.241),
    (207.645, 1.587, -323.698),
    (215.934, 1.587, -296.32),
    (209.747, 1.587, -292.813),
    (284.674, 1.587, -368.715),
    (271.113, 1.587, -366.381),
    (254.911, 1.587, -381.319),
    (241.481, 1.587, -382.591),
    (234.968, 1.587, -398.686),
    (219.692, 1.587, -289.692),
    (259.48, 1.587, -264.447),
    (255.857, 1.587, -258.392),
    (213.506, 1.587, -286.184),
    (285.218, 1.587, -299.671),
    (273.036, 1.587, -323.798),
    (279.464, 1.587, -357.508),
    (279.464, 1.587, -328.061),
    (267.276, 1.587, -341.381),
    (272.837, 1.587, -356.368),
    (261.655, 1.587, -336.237),
    (267.448, 1.587, -251.457),
]))
fillet2.Radius = Q("0.12 in")

# Sketch on XZ plane
sketch6 = doc.addObject("Sketcher::SketchObject", "Sketch005")
body.addObject(sketch6)
sketch6.AttachmentSupport = (doc.XZ_Plane, [""])
sketch6.MapMode = "FlatFace"
add_polygon(sketch6, [(180.975, -312.789047), (180.975, -328.029047), (200.025, -328.029047), (200.025, -312.789047)])  # lines 0-3
add_polygon(sketch6, [(326.233514, -266.024333), (321.501477, -280.511066), (339.609893, -286.426113), (344.34193, -271.93938)])  # lines 4-7
add_polygon(sketch6, [(245.604664, -255.647115), (258.682247, -247.821872), (248.900692, -231.474893), (235.82311, -239.300137)])  # lines 8-11
add_polygon(sketch6, [(287.707648, -380.590589), (277.962892, -392.307983), (292.609635, -404.488928), (302.354391, -392.771534)])  # lines 12-15
sketch6.addConstraint([
    Sketcher.Constraint("Vertical", 0),
    Sketcher.Constraint("Horizontal", 1),
    Sketcher.Constraint("Vertical", 2),
    Sketcher.Constraint("Horizontal", 3),
    Sketcher.Constraint("Perpendicular", 4, 5),
    Sketcher.Constraint("Perpendicular", 5, 6),
    Sketcher.Constraint("Perpendicular", 6, 7),
    Sketcher.Constraint("Perpendicular", 8, 9),
    Sketcher.Constraint("Perpendicular", 9, 10),
    Sketcher.Constraint("Perpendicular", 10, 11),
    Sketcher.Constraint("Perpendicular", 12, 13),
    Sketcher.Constraint("Perpendicular", 13, 14),
    Sketcher.Constraint("Perpendicular", 14, 15),
    Sketcher.Constraint("Equal", 6, 8),
    Sketcher.Constraint("Equal", 7, 9),
    Sketcher.Constraint("Equal", 10, 12),
    Sketcher.Constraint("Equal", 11, 13),
    Sketcher.Constraint("DistanceY", 0, 2, 0, 1, Q("0.6 in")),
    Sketcher.Constraint("Distance", 4, Q("0.6 in")),
    Sketcher.Constraint("DistanceX", 1, 1, 1, 2, Q("0.75 in")),
    Sketcher.Constraint("Distance", 5, Q("0.75 in")),
    Sketcher.Constraint("DistanceX", -1, 1, 0, 2, Q("7.125 in")),
    Sketcher.Constraint("DistanceX", 12, 2, 5, 2, 61.647001),
    Sketcher.Constraint("DistanceX", 12, 2, 14, 2, 24.391499),
    Sketcher.Constraint("DistanceX", -1, 1, 6, 2, 344.34193),
    Sketcher.Constraint("DistanceY", 6, 2, -1, 1, 271.93938),
    Sketcher.Constraint("DistanceY", 8, 2, -1, 1, 247.821872),
    Sketcher.Constraint("DistanceX", -1, 1, 10, 2, 235.82311),
    Sketcher.Constraint("DistanceX", -1, 1, 12, 2, 277.962892),
    Sketcher.Constraint("DistanceY", 13, 2, -1, 1, 404.488928),
    Sketcher.Constraint("DistanceY", 2, 2, 4, 2, 32.277981),
    Sketcher.Constraint("DistanceX", 8, 2, 4, 2, 62.81923),
])
pad2 = doc.addObject("PartDesign::Pad", "Pad001")
body.addObject(pad2)
pad2.Profile = sketch6
pad2.Length = Q("0.05 in")
pad2.Reversed = True
body2 = doc.addObject("PartDesign::Body", "Body001")

# Sketch on XZ plane
sketch7 = doc.addObject("Sketcher::SketchObject", "Sketch006")
body2.addObject(sketch7)
sketch7.AttachmentSupport = (doc.getObject("XZ_Plane001"), [""])
sketch7.MapMode = "FlatFace"
add_polygon(sketch7, [(347.982108, -166.874198), (347.982108, -204.974198), (386.082108, -204.974198), (386.082108, -166.874198)])  # lines 0-3
sketch7.addConstraint([
    Sketcher.Constraint("Vertical", 0),
    Sketcher.Constraint("Horizontal", 1),
    Sketcher.Constraint("Vertical", 2),
    Sketcher.Constraint("Horizontal", 3),
    Sketcher.Constraint("Equal", 3, 0),
    Sketcher.Constraint("DistanceX", 1, 1, 1, 2, Q("1.5 in")),
    Sketcher.Constraint("DistanceX", -1, 1, 0, 2, 347.982108),
    Sketcher.Constraint("DistanceY", 0, 2, -1, 1, 204.974198),
])
pad3 = doc.addObject("PartDesign::Pad", "Pad002")
body2.addObject(pad3)
pad3.Profile = sketch7
pad3.Length = Q("0.125 in")
pad3.Reversed = True

doc.recompute()
